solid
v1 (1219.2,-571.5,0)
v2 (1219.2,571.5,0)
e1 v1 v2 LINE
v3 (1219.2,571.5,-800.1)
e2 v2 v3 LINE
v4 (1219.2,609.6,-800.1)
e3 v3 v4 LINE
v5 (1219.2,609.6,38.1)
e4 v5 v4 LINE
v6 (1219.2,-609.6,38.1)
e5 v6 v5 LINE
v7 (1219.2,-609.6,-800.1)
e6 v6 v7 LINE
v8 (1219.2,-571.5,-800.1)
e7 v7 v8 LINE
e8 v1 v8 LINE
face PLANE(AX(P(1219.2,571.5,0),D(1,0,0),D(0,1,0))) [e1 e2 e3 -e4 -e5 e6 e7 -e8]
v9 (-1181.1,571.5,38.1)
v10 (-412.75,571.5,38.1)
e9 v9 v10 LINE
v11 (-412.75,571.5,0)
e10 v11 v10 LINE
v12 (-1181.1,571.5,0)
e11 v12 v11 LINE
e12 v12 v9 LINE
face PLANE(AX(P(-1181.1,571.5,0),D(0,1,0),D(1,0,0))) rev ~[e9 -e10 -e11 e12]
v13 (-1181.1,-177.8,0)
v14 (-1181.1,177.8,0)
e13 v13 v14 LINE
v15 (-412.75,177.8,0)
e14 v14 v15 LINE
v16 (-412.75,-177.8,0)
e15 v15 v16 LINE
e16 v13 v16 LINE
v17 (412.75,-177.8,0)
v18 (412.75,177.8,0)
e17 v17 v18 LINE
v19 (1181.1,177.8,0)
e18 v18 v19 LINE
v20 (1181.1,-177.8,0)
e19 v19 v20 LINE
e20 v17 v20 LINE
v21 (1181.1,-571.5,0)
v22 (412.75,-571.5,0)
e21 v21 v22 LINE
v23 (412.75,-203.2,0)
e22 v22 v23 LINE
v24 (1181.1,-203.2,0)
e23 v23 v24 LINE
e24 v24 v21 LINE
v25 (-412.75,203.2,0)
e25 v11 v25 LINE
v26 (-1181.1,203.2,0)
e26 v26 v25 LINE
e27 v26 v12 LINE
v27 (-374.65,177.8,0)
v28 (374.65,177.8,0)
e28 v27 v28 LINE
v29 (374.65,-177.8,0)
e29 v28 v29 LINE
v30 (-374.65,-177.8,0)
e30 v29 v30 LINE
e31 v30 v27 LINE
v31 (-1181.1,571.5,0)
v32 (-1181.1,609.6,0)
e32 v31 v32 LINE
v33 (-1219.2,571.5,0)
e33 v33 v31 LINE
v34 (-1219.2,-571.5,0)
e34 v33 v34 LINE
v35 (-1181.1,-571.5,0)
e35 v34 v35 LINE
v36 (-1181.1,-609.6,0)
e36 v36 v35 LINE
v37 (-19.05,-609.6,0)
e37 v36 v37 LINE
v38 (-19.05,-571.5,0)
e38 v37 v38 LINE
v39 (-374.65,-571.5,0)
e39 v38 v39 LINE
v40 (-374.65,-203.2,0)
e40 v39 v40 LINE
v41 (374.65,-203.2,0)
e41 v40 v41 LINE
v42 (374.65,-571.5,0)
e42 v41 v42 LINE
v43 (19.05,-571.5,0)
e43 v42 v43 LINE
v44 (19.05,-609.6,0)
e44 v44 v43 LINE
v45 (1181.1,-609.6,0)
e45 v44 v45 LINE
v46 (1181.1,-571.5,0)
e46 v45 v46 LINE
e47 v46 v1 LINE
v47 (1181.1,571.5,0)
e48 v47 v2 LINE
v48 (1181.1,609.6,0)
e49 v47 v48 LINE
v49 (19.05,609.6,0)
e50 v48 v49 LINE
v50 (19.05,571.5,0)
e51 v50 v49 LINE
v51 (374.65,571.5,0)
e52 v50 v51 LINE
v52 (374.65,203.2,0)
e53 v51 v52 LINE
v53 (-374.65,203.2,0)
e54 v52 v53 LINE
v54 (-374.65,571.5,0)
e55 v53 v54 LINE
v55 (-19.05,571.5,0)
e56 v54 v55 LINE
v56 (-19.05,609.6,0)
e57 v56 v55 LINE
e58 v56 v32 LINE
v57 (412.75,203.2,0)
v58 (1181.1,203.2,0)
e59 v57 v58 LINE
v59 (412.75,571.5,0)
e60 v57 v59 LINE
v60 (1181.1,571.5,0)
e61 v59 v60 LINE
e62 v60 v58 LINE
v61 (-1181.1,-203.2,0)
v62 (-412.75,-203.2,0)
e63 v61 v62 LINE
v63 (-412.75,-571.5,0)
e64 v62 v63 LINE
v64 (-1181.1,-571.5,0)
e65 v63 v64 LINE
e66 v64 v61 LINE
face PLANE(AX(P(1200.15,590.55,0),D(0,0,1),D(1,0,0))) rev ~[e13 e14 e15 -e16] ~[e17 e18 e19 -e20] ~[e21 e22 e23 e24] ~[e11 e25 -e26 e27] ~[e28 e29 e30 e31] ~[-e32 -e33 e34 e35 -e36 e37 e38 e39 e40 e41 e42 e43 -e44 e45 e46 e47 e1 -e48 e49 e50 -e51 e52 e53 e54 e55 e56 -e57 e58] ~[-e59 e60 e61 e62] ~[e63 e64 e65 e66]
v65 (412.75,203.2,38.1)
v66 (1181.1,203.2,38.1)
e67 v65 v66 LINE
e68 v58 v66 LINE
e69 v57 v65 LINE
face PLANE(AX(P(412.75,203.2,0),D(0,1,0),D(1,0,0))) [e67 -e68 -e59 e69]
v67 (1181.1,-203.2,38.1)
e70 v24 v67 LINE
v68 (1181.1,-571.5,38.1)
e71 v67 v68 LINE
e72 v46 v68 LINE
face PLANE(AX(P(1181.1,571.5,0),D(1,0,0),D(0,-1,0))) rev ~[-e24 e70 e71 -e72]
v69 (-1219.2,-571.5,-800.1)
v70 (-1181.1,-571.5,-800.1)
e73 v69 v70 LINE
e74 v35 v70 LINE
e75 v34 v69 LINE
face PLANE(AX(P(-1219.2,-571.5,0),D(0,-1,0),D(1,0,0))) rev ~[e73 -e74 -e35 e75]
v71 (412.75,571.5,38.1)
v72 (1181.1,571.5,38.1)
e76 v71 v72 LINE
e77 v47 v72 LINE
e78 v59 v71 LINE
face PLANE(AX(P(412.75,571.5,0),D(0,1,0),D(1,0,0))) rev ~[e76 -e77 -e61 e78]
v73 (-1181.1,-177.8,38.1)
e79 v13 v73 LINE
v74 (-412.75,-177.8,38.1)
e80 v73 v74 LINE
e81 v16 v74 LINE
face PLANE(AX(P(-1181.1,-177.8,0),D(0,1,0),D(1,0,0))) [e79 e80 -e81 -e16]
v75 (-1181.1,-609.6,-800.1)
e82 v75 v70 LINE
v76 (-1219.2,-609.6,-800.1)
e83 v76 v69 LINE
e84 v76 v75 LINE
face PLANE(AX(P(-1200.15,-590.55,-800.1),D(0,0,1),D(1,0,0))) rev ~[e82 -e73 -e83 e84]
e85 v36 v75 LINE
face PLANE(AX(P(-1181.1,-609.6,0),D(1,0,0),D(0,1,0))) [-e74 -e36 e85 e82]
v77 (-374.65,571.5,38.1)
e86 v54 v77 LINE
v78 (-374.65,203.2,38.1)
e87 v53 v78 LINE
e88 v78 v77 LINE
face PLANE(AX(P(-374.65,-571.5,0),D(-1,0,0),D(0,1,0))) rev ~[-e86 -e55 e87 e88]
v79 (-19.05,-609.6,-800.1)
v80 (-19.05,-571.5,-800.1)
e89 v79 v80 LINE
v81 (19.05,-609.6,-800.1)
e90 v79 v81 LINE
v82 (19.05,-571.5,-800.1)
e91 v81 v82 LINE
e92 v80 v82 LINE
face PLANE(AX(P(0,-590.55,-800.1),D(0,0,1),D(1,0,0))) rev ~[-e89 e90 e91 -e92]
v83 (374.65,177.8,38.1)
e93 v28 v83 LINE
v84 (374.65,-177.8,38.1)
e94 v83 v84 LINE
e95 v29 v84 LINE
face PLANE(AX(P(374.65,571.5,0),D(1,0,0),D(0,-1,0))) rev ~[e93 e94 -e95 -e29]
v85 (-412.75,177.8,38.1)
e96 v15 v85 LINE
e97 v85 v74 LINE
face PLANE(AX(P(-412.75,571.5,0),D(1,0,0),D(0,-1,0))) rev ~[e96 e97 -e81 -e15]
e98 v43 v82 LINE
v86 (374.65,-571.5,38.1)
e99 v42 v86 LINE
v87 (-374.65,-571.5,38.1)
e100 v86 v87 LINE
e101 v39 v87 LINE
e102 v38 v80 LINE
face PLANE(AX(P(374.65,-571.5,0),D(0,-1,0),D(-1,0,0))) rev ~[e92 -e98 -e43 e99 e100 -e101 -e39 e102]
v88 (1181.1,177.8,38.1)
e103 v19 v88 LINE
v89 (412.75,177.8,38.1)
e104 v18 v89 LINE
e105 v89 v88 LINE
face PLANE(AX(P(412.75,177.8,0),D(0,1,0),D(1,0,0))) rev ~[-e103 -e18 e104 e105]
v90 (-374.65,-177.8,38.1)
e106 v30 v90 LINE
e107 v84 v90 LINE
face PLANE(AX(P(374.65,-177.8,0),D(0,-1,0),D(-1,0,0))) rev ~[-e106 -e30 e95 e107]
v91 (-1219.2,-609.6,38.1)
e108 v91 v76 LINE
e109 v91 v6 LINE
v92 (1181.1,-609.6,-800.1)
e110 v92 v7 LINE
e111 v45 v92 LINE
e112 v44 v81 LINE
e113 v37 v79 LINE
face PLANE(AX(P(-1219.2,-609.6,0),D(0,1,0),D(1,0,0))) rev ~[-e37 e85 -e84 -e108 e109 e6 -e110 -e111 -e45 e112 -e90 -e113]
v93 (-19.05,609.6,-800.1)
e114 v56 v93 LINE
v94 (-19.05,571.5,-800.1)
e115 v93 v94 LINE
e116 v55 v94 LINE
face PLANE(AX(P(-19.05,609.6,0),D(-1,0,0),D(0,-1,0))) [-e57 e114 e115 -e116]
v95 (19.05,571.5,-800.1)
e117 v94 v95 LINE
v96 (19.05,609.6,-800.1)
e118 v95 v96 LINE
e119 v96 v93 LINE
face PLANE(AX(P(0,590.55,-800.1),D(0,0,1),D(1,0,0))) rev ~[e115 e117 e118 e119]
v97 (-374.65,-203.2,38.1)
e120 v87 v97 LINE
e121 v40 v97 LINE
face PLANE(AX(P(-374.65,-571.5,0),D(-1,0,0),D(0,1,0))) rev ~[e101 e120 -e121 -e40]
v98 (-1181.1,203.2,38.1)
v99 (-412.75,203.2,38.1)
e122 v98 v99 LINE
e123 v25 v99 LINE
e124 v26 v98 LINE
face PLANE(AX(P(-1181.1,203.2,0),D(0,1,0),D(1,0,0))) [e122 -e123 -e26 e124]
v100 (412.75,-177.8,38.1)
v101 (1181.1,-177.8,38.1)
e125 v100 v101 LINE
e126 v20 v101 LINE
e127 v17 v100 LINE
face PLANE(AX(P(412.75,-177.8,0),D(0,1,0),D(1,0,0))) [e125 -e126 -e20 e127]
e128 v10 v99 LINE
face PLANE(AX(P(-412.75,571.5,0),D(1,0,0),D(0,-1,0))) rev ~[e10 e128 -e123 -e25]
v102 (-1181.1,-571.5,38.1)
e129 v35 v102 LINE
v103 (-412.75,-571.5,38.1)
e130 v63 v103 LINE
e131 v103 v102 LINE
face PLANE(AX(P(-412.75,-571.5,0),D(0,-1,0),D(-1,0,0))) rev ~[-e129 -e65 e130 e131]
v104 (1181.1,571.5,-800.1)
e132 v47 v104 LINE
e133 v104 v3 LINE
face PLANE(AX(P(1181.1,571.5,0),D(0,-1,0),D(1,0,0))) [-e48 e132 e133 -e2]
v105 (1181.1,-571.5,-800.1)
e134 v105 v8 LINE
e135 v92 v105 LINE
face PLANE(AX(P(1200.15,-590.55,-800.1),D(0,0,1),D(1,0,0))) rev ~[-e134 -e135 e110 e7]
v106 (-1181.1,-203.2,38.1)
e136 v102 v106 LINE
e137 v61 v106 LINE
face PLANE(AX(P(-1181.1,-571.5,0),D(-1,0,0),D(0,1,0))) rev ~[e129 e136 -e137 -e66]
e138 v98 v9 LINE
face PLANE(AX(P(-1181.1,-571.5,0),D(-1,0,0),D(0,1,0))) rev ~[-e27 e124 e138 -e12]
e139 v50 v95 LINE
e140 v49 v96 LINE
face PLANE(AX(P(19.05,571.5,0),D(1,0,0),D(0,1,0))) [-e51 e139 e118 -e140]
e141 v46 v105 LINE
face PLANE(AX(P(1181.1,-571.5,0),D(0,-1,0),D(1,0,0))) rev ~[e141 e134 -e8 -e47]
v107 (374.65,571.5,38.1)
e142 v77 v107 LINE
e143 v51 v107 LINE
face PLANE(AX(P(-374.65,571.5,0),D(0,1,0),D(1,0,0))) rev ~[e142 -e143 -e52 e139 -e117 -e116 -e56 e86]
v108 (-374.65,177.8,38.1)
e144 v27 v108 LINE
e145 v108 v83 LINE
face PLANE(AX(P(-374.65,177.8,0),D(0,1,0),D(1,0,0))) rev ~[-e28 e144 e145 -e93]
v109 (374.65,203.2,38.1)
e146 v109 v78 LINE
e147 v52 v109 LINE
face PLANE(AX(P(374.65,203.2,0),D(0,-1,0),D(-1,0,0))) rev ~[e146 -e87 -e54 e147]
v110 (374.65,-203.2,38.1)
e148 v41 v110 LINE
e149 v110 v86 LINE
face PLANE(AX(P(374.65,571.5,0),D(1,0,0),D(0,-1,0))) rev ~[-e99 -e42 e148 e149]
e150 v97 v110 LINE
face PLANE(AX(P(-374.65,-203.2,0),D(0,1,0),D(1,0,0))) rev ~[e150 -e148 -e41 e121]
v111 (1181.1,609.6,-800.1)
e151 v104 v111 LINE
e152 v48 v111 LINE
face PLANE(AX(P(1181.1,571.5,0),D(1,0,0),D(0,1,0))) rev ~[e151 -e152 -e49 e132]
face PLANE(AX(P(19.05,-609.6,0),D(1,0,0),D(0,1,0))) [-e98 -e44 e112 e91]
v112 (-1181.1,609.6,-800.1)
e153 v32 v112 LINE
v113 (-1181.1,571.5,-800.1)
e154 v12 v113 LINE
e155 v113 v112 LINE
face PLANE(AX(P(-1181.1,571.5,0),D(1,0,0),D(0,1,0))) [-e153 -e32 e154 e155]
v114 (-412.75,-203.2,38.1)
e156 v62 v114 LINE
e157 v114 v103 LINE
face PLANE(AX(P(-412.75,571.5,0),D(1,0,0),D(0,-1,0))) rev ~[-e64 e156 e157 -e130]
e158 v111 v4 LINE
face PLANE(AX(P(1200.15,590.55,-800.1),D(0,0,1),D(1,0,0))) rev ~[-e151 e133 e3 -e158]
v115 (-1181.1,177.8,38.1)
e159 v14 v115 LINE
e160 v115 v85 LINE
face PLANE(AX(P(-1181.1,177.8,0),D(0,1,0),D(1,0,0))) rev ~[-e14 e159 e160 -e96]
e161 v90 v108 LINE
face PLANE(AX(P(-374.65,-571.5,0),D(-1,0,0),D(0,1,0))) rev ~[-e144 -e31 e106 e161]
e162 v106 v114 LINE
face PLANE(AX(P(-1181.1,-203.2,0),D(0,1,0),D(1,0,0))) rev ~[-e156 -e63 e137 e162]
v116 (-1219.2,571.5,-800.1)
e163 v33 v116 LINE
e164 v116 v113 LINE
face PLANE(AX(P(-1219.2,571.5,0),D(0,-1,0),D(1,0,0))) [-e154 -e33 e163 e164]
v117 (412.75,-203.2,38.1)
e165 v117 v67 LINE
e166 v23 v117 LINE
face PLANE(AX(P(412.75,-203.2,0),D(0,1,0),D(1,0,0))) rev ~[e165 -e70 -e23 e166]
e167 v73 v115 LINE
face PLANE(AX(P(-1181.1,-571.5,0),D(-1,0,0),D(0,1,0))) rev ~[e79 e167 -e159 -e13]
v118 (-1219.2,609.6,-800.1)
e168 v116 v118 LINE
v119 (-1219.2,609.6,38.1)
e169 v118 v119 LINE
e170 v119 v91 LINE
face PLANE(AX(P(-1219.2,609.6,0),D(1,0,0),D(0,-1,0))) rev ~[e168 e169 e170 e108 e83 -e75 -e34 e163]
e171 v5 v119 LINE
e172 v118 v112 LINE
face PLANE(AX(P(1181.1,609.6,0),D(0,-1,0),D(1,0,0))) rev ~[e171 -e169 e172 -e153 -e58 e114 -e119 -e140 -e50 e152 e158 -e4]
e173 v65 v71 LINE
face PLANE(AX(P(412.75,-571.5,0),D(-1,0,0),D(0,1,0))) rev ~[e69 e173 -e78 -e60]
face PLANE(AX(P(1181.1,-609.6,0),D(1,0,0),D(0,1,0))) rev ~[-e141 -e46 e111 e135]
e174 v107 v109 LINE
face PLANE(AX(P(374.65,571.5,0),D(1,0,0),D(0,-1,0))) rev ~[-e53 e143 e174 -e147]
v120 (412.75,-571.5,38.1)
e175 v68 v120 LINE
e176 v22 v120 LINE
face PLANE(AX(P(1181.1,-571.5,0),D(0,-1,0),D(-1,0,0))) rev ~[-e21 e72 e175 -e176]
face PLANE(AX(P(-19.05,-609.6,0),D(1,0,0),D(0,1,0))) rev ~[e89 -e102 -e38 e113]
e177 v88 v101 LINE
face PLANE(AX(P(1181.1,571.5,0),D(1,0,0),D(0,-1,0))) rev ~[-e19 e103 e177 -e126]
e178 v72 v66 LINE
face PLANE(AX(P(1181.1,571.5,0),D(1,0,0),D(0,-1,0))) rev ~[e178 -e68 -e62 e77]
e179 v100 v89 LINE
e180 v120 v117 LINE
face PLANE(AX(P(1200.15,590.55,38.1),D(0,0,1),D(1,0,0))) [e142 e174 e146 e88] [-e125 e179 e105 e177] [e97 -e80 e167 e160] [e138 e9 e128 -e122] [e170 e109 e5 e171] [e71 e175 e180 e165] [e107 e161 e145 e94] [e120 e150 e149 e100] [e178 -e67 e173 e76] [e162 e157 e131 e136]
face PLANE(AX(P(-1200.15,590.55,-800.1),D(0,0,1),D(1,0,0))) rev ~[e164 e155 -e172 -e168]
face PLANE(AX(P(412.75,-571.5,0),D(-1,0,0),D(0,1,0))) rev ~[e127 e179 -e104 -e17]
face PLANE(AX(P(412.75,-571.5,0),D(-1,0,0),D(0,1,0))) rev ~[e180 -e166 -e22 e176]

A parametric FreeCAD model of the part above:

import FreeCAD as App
import Part
import Sketcher
Q = App.Units.Quantity


def add_polygon(sketch, points):
    """Adds a closed chain of lines whose ends are joined by coincident constraints."""
    first, n = sketch.GeometryCount, len(points)
    for a, b in zip(points, points[1:] + points[:1]):
        sketch.addGeometry(Part.LineSegment(App.Vector(*a, 0), App.Vector(*b, 0)), False)
    for i in range(n):
        sketch.addConstraint(Sketcher.Constraint("Coincident", first + i, 2, first + (i + 1) % n, 1))

doc = App.newDocument("Part")
body = doc.addObject("PartDesign::Body", "Body")

# Sketch on XY plane
sketch1 = body.newObject("Sketcher::SketchObject", "Sketch")
sketch1.AttachmentSupport = (doc.getObject("XY_Plane"), [""])
sketch1.MapMode = "FlatFace"
add_polygon(sketch1, [(-1219, 610), (-1219, -610), (1219, -610), (1219, 610)])  # lines 0-3
add_polygon(sketch1, [(1181, -572), (413, -572), (413, 572), (1181, 572)])  # lines 4-7
add_polygon(sketch1, [(375, -572), (-375, -572), (-375, 572), (375, 572)])  # lines 8-11
add_polygon(sketch1, [(-413, -572), (-1181, -572), (-1181, 572), (-413, 572)])  # lines 12-15
sketch1.addConstraint([
    Sketcher.Constraint("Vertical", 0),
    Sketcher.Constraint("Horizontal", 1),
    Sketcher.Constraint("Vertical", 2),
    Sketcher.Constraint("Horizontal", 3),
    Sketcher.Constraint("Horizontal", 4),
    Sketcher.Constraint("Vertical", 5),
    Sketcher.Constraint("Horizontal", 6),
    Sketcher.Constraint("Vertical", 7),
    Sketcher.Constraint("Horizontal", 8),
    Sketcher.Constraint("Vertical", 9),
    Sketcher.Constraint("Horizontal", 10),
    Sketcher.Constraint("Vertical", 11),
    Sketcher.Constraint("Horizontal", 12),
    Sketcher.Constraint("Vertical", 13),
    Sketcher.Constraint("Horizontal", 14),
    Sketcher.Constraint("Vertical", 15),
    Sketcher.Constraint("Symmetric", 0, 2, 2, 2, -1, 1),
    Sketcher.Constraint("Symmetric", 8, 2, 10, 2, -1, 1),
    Sketcher.Constraint("Symmetric", 6, 2, 12, 2, -1, 1),
    Sketcher.Constraint("Symmetric", 4, 2, 14, 2, -1, 1),
    Sketcher.Constraint("Horizontal", 7, 2, 8, 2),
    Sketcher.Constraint("Horizontal", 6, 2, 9, 2),
    Sketcher.Constraint("DistanceX", 1, 1, 1, 2, Q("96 in")),
    Sketcher.Constraint("DistanceY", 0, 2, 0, 1, Q("48 in")),
    Sketcher.Constraint("DistanceY", 5, 1, 5, 2, Q("45 in")),
    Sketcher.Constraint("DistanceX", 8, 2, 8, 1, Q("29.5 in")),
    Sketcher.Constraint("DistanceX", 8, 2, 4, 2, Q("31 in")),
    Sketcher.Constraint("DistanceX", 4, 2, 4, 1, Q("30.25 in")),
])
pad1 = body.newObject("PartDesign::Pad", "Pad")
pad1.Profile = sketch1
pad1.Length = Q("1.5 in")

# Sketch on XY plane
sketch2 = body.newObject("Sketcher::SketchObject", "Sketch001")
sketch2.AttachmentSupport = (doc.getObject("XY_Plane"), [""])
sketch2.MapMode = "FlatFace"
add_polygon(sketch2, [(1181, 610), (1181, 572), (1219, 572), (1219, 610)])  # lines 0-3
add_polygon(sketch2, [(1181, -572), (1181, -610), (1219, -610), (1219, -572)])  # lines 4-7
add_polygon(sketch2, [(-19, -572), (-19, -610), (19, -610), (19, -572)])  # lines 8-11
add_polygon(sketch2, [(19, 572), (19, 610), (-19, 610), (-19, 572)])  # lines 12-15
add_polygon(sketch2, [(-1219, 610), (-1219, 572), (-1181, 572), (-1181, 610)])  # lines 16-19
add_polygon(sketch2, [(-1219, -572), (-1219, -610), (-1181, -610), (-1181, -572)])  # lines 20-23
sketch2.addConstraint([
    Sketcher.Constraint("Vertical", 0),
    Sketcher.Constraint("Horizontal", 1),
    Sketcher.Constraint("Vertical", 2),
    Sketcher.Constraint("Horizontal", 3),
    Sketcher.Constraint("Vertical", 4),
    Sketcher.Constraint("Horizontal", 5),
    Sketcher.Constraint("Vertical", 6),
    Sketcher.Constraint("Horizontal", 7),
    Sketcher.Constraint("Vertical", 8),
    Sketcher.Constraint("Horizontal", 9),
    Sketcher.Constraint("Vertical", 10),
    Sketcher.Constraint("Horizontal", 11),
    Sketcher.Constraint("Vertical", 12),
    Sketcher.Constraint("Horizontal", 13),
    Sketcher.Constraint("Vertical", 14),
    Sketcher.Constraint("Horizontal", 15),
    Sketcher.Constraint("Vertical", 16),
    Sketcher.Constraint("Horizontal", 17),
    Sketcher.Constraint("Vertical", 18),
    Sketcher.Constraint("Horizontal", 19),
    Sketcher.Constraint("Vertical", 20),
    Sketcher.Constraint("Horizontal", 21),
    Sketcher.Constraint("Vertical", 22),
    Sketcher.Constraint("Horizontal", 23),
    Sketcher.Constraint("Symmetric", 8, 2, 12, 2, -1, 1),
    Sketcher.Constraint("Symmetric", 10, 2, 14, 2, -1, 1),
    Sketcher.Constraint("Symmetric", 6, 2, 16, 2, -1, 1),
    Sketcher.Constraint("Symmetric", 4, 2, 18, 2, -1, 1),
    Sketcher.Constraint("Symmetric", 2, 2, 20, 2, -1, 1),
    Sketcher.Constraint("Symmetric", 0, 2, 22, 2, -1, 1),
    Sketcher.Constraint("Symmetric", 1, 2, 16, 2, -2),
    Sketcher.Constraint("Symmetric", 3, 2, 18, 2, -2),
    Sketcher.Constraint("Horizontal", 5, 2, 8, 2),
    Sketcher.Constraint("Horizontal", 7, 2, 10, 2),
    Sketcher.Constraint("Vertical", 10, 2, 12, 2),
    Sketcher.Constraint("Equal", 7, 9),
    Sketcher.Constraint("Equal", 23, 0),
    Sketcher.Constraint("DistanceX", 1, 1, 1, 2, Q("1.5 in")),
    Sketcher.Constraint("DistanceX", -1, 1, 1, 2, Q("48 in")),
    Sketcher.Constraint("DistanceY", -1, 1, 2, 2, Q("24 in")),
])
pad2 = body.newObject("PartDesign::Pad", "Pad001")
pad2.Profile = sketch2
pad2.Length = Q("31.5 in")
pad2.Reversed = True

# Sketch on XY plane
sketch3 = body.newObject("Sketcher::SketchObject", "Sketch002")
sketch3.AttachmentSupport = (doc.getObject("XY_Plane"), [""])
sketch3.MapMode = "FlatFace"
add_polygon(sketch3, [(-375, -203), (375, -203), (375, -178), (-375, -178)])  # lines 0-3
add_polygon(sketch3, [(375, 178), (375, 203), (-375, 203), (-375, 178)])  # lines 4-7
add_polygon(sketch3, [(-1181, 203), (-1181, 178), (-413, 178), (-413, 203)])  # lines 8-11
add_polygon(sketch3, [(-1181, -178), (-1181, -203), (-413, -203), (-413, -178)])  # lines 12-15
add_polygon(sketch3, [(413, -178), (413, -203), (1181, -203), (1181, -178)])  # lines 16-19
add_polygon(sketch3, [(413, 203), (413, 178), (1181, 178), (1181, 203)])  # lines 20-23
sketch3.addConstraint([
    Sketcher.Constraint("Horizontal", 0),
    Sketcher.Constraint("Vertical", 1),
    Sketcher.Constraint("Horizontal", 2),
    Sketcher.Constraint("Vertical", 3),
    Sketcher.Constraint("Vertical", 4),
    Sketcher.Constraint("Horizontal", 5),
    Sketcher.Constraint("Vertical", 6),
    Sketcher.Constraint("Horizontal", 7),
    Sketcher.Constraint("Vertical", 8),
    Sketcher.Constraint("Horizontal", 9),
    Sketcher.Constraint("Vertical", 10),
    Sketcher.Constraint("Horizontal", 11),
    Sketcher.Constraint("Vertical", 12),
    Sketcher.Constraint("Horizontal", 13),
    Sketcher.Constraint("Vertical", 14),
    Sketcher.Constraint("Horizontal", 15),
    Sketcher.Constraint("Vertical", 16),
    Sketcher.Constraint("Horizontal", 17),
    Sketcher.Constraint("Vertical", 18),
    Sketcher.Constraint("Horizontal", 19),
    Sketcher.Constraint("Vertical", 20),
    Sketcher.Constraint("Horizontal", 21),
    Sketcher.Constraint("Vertical", 22),
    Sketcher.Constraint("Horizontal", 23),
    Sketcher.Constraint("Symmetric", 3, 2, 4, 2, -1, 1),
    Sketcher.Constraint("Symmetric", 1, 2, 6, 2, -1, 1),
    Sketcher.Constraint("Symmetric", 10, 2, 16, 2, -1, 1),
    Sketcher.Constraint("Symmetric", 8, 2, 18, 2, -1, 1),
    Sketcher.Constraint("Symmetric", 14, 2, 20, 2, -1, 1),
    Sketcher.Constraint("Symmetric", 12, 2, 22, 2, -1, 1),
    Sketcher.Constraint("Symmetric", 13, 2, 16, 2, -2),
    Sketcher.Constraint("Symmetric", 15, 2, 18, 2, -2),
    Sketcher.Constraint("Horizontal", 7, 2, 8, 2),
    Sketcher.Constraint("Horizontal", 5, 2, 10, 2),
    Sketcher.Constraint("Vertical", 1, 2, 4, 2),
    Sketcher.Constraint("DistanceY", 1, 1, 1, 2, Q("1 in")),
    Sketcher.Constraint("DistanceX", 0, 1, 0, 2, Q("29.5 in")),
    Sketcher.Constraint("DistanceY", 0, 2, -1, 1, Q("8 in")),
    Sketcher.Constraint("DistanceX", 3, 2, 16, 2, Q("31 in")),
    Sketcher.Constraint("DistanceX", 9, 1, 9, 2, Q("30.25 in")),
])
pad3 = body.newObject("PartDesign::Pad", "Pad002")
pad3.Profile = sketch3
pad3.Length = Q("1.5 in")

doc.recompute()
